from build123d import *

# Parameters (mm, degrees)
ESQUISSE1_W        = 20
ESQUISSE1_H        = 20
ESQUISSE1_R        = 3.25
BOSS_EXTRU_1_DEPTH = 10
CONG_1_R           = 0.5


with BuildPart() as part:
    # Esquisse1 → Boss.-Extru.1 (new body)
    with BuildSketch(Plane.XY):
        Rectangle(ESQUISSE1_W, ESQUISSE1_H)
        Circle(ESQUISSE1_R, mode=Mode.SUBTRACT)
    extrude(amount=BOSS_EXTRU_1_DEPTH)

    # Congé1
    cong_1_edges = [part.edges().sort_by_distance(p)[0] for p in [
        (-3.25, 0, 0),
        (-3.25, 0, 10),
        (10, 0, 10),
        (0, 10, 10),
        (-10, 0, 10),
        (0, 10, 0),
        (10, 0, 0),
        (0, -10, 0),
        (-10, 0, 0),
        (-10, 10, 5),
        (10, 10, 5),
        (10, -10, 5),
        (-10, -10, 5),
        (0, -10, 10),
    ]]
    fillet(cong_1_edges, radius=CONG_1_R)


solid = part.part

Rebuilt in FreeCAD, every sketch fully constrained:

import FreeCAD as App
import Part
import Sketcher

V = App.Vector

doc = App.newDocument("Part")
body = doc.addObject("PartDesign::Body", "Body")

sketch1 = doc.addObject("Sketcher::SketchObject", "Sketch")
body.addObject(sketch1)
sketch1.AttachmentSupport = (doc.XY_Plane, [""])
sketch1.MapMode = "FlatFace"
sketch1.addGeometry([
    Part.LineSegment(V(-10, 10, 0), V(-10, -10, 0)),
    Part.LineSegment(V(-10, -10, 0), V(10, -10, 0)),
    Part.LineSegment(V(10, -10, 0), V(10, 10, 0)),
    Part.LineSegment(V(10, 10, 0), V(-10, 10, 0)),
    Part.Circle(V(0, 0, 0), V(0, 0, 1), 3.2),
], False)
sketch1.addConstraint([
    Sketcher.Constraint("Coincident", 0, 2, 1, 1),
    Sketcher.Constraint("Coincident", 1, 2, 2, 1),
    Sketcher.Constraint("Coincident", 2, 2, 3, 1),
    Sketcher.Constraint("Coincident", 3, 2, 0, 1),
    Sketcher.Constraint("Vertical", 0),
    Sketcher.Constraint("Horizontal", 1),
    Sketcher.Constraint("Vertical", 2),
    Sketcher.Constraint("Horizontal", 3),
    Sketcher.Constraint("Coincident", 4, 3, -1, 1),
    Sketcher.Constraint("Symmetric", 0, 2, 2, 2, -1, 1),
    Sketcher.Constraint("Equal", 3, 0),
    Sketcher.Constraint("Diameter", 4, 6.5),
    Sketcher.Constraint("DistanceX", 1, 1, 1, 2, 20.0),
])
pad1 = doc.addObject("PartDesign::Pad", "Pad")
body.addObject(pad1)
pad1.Profile = sketch1
pad1.Length = 10
doc.recompute()

fillet = doc.addObject("PartDesign::Fillet", "Fillet")
body.addObject(fillet)
fillet.Base = (pad1, ["Edge1"])
fillet.UseAllEdges = True
fillet.Radius = 0.5

doc.recompute()
